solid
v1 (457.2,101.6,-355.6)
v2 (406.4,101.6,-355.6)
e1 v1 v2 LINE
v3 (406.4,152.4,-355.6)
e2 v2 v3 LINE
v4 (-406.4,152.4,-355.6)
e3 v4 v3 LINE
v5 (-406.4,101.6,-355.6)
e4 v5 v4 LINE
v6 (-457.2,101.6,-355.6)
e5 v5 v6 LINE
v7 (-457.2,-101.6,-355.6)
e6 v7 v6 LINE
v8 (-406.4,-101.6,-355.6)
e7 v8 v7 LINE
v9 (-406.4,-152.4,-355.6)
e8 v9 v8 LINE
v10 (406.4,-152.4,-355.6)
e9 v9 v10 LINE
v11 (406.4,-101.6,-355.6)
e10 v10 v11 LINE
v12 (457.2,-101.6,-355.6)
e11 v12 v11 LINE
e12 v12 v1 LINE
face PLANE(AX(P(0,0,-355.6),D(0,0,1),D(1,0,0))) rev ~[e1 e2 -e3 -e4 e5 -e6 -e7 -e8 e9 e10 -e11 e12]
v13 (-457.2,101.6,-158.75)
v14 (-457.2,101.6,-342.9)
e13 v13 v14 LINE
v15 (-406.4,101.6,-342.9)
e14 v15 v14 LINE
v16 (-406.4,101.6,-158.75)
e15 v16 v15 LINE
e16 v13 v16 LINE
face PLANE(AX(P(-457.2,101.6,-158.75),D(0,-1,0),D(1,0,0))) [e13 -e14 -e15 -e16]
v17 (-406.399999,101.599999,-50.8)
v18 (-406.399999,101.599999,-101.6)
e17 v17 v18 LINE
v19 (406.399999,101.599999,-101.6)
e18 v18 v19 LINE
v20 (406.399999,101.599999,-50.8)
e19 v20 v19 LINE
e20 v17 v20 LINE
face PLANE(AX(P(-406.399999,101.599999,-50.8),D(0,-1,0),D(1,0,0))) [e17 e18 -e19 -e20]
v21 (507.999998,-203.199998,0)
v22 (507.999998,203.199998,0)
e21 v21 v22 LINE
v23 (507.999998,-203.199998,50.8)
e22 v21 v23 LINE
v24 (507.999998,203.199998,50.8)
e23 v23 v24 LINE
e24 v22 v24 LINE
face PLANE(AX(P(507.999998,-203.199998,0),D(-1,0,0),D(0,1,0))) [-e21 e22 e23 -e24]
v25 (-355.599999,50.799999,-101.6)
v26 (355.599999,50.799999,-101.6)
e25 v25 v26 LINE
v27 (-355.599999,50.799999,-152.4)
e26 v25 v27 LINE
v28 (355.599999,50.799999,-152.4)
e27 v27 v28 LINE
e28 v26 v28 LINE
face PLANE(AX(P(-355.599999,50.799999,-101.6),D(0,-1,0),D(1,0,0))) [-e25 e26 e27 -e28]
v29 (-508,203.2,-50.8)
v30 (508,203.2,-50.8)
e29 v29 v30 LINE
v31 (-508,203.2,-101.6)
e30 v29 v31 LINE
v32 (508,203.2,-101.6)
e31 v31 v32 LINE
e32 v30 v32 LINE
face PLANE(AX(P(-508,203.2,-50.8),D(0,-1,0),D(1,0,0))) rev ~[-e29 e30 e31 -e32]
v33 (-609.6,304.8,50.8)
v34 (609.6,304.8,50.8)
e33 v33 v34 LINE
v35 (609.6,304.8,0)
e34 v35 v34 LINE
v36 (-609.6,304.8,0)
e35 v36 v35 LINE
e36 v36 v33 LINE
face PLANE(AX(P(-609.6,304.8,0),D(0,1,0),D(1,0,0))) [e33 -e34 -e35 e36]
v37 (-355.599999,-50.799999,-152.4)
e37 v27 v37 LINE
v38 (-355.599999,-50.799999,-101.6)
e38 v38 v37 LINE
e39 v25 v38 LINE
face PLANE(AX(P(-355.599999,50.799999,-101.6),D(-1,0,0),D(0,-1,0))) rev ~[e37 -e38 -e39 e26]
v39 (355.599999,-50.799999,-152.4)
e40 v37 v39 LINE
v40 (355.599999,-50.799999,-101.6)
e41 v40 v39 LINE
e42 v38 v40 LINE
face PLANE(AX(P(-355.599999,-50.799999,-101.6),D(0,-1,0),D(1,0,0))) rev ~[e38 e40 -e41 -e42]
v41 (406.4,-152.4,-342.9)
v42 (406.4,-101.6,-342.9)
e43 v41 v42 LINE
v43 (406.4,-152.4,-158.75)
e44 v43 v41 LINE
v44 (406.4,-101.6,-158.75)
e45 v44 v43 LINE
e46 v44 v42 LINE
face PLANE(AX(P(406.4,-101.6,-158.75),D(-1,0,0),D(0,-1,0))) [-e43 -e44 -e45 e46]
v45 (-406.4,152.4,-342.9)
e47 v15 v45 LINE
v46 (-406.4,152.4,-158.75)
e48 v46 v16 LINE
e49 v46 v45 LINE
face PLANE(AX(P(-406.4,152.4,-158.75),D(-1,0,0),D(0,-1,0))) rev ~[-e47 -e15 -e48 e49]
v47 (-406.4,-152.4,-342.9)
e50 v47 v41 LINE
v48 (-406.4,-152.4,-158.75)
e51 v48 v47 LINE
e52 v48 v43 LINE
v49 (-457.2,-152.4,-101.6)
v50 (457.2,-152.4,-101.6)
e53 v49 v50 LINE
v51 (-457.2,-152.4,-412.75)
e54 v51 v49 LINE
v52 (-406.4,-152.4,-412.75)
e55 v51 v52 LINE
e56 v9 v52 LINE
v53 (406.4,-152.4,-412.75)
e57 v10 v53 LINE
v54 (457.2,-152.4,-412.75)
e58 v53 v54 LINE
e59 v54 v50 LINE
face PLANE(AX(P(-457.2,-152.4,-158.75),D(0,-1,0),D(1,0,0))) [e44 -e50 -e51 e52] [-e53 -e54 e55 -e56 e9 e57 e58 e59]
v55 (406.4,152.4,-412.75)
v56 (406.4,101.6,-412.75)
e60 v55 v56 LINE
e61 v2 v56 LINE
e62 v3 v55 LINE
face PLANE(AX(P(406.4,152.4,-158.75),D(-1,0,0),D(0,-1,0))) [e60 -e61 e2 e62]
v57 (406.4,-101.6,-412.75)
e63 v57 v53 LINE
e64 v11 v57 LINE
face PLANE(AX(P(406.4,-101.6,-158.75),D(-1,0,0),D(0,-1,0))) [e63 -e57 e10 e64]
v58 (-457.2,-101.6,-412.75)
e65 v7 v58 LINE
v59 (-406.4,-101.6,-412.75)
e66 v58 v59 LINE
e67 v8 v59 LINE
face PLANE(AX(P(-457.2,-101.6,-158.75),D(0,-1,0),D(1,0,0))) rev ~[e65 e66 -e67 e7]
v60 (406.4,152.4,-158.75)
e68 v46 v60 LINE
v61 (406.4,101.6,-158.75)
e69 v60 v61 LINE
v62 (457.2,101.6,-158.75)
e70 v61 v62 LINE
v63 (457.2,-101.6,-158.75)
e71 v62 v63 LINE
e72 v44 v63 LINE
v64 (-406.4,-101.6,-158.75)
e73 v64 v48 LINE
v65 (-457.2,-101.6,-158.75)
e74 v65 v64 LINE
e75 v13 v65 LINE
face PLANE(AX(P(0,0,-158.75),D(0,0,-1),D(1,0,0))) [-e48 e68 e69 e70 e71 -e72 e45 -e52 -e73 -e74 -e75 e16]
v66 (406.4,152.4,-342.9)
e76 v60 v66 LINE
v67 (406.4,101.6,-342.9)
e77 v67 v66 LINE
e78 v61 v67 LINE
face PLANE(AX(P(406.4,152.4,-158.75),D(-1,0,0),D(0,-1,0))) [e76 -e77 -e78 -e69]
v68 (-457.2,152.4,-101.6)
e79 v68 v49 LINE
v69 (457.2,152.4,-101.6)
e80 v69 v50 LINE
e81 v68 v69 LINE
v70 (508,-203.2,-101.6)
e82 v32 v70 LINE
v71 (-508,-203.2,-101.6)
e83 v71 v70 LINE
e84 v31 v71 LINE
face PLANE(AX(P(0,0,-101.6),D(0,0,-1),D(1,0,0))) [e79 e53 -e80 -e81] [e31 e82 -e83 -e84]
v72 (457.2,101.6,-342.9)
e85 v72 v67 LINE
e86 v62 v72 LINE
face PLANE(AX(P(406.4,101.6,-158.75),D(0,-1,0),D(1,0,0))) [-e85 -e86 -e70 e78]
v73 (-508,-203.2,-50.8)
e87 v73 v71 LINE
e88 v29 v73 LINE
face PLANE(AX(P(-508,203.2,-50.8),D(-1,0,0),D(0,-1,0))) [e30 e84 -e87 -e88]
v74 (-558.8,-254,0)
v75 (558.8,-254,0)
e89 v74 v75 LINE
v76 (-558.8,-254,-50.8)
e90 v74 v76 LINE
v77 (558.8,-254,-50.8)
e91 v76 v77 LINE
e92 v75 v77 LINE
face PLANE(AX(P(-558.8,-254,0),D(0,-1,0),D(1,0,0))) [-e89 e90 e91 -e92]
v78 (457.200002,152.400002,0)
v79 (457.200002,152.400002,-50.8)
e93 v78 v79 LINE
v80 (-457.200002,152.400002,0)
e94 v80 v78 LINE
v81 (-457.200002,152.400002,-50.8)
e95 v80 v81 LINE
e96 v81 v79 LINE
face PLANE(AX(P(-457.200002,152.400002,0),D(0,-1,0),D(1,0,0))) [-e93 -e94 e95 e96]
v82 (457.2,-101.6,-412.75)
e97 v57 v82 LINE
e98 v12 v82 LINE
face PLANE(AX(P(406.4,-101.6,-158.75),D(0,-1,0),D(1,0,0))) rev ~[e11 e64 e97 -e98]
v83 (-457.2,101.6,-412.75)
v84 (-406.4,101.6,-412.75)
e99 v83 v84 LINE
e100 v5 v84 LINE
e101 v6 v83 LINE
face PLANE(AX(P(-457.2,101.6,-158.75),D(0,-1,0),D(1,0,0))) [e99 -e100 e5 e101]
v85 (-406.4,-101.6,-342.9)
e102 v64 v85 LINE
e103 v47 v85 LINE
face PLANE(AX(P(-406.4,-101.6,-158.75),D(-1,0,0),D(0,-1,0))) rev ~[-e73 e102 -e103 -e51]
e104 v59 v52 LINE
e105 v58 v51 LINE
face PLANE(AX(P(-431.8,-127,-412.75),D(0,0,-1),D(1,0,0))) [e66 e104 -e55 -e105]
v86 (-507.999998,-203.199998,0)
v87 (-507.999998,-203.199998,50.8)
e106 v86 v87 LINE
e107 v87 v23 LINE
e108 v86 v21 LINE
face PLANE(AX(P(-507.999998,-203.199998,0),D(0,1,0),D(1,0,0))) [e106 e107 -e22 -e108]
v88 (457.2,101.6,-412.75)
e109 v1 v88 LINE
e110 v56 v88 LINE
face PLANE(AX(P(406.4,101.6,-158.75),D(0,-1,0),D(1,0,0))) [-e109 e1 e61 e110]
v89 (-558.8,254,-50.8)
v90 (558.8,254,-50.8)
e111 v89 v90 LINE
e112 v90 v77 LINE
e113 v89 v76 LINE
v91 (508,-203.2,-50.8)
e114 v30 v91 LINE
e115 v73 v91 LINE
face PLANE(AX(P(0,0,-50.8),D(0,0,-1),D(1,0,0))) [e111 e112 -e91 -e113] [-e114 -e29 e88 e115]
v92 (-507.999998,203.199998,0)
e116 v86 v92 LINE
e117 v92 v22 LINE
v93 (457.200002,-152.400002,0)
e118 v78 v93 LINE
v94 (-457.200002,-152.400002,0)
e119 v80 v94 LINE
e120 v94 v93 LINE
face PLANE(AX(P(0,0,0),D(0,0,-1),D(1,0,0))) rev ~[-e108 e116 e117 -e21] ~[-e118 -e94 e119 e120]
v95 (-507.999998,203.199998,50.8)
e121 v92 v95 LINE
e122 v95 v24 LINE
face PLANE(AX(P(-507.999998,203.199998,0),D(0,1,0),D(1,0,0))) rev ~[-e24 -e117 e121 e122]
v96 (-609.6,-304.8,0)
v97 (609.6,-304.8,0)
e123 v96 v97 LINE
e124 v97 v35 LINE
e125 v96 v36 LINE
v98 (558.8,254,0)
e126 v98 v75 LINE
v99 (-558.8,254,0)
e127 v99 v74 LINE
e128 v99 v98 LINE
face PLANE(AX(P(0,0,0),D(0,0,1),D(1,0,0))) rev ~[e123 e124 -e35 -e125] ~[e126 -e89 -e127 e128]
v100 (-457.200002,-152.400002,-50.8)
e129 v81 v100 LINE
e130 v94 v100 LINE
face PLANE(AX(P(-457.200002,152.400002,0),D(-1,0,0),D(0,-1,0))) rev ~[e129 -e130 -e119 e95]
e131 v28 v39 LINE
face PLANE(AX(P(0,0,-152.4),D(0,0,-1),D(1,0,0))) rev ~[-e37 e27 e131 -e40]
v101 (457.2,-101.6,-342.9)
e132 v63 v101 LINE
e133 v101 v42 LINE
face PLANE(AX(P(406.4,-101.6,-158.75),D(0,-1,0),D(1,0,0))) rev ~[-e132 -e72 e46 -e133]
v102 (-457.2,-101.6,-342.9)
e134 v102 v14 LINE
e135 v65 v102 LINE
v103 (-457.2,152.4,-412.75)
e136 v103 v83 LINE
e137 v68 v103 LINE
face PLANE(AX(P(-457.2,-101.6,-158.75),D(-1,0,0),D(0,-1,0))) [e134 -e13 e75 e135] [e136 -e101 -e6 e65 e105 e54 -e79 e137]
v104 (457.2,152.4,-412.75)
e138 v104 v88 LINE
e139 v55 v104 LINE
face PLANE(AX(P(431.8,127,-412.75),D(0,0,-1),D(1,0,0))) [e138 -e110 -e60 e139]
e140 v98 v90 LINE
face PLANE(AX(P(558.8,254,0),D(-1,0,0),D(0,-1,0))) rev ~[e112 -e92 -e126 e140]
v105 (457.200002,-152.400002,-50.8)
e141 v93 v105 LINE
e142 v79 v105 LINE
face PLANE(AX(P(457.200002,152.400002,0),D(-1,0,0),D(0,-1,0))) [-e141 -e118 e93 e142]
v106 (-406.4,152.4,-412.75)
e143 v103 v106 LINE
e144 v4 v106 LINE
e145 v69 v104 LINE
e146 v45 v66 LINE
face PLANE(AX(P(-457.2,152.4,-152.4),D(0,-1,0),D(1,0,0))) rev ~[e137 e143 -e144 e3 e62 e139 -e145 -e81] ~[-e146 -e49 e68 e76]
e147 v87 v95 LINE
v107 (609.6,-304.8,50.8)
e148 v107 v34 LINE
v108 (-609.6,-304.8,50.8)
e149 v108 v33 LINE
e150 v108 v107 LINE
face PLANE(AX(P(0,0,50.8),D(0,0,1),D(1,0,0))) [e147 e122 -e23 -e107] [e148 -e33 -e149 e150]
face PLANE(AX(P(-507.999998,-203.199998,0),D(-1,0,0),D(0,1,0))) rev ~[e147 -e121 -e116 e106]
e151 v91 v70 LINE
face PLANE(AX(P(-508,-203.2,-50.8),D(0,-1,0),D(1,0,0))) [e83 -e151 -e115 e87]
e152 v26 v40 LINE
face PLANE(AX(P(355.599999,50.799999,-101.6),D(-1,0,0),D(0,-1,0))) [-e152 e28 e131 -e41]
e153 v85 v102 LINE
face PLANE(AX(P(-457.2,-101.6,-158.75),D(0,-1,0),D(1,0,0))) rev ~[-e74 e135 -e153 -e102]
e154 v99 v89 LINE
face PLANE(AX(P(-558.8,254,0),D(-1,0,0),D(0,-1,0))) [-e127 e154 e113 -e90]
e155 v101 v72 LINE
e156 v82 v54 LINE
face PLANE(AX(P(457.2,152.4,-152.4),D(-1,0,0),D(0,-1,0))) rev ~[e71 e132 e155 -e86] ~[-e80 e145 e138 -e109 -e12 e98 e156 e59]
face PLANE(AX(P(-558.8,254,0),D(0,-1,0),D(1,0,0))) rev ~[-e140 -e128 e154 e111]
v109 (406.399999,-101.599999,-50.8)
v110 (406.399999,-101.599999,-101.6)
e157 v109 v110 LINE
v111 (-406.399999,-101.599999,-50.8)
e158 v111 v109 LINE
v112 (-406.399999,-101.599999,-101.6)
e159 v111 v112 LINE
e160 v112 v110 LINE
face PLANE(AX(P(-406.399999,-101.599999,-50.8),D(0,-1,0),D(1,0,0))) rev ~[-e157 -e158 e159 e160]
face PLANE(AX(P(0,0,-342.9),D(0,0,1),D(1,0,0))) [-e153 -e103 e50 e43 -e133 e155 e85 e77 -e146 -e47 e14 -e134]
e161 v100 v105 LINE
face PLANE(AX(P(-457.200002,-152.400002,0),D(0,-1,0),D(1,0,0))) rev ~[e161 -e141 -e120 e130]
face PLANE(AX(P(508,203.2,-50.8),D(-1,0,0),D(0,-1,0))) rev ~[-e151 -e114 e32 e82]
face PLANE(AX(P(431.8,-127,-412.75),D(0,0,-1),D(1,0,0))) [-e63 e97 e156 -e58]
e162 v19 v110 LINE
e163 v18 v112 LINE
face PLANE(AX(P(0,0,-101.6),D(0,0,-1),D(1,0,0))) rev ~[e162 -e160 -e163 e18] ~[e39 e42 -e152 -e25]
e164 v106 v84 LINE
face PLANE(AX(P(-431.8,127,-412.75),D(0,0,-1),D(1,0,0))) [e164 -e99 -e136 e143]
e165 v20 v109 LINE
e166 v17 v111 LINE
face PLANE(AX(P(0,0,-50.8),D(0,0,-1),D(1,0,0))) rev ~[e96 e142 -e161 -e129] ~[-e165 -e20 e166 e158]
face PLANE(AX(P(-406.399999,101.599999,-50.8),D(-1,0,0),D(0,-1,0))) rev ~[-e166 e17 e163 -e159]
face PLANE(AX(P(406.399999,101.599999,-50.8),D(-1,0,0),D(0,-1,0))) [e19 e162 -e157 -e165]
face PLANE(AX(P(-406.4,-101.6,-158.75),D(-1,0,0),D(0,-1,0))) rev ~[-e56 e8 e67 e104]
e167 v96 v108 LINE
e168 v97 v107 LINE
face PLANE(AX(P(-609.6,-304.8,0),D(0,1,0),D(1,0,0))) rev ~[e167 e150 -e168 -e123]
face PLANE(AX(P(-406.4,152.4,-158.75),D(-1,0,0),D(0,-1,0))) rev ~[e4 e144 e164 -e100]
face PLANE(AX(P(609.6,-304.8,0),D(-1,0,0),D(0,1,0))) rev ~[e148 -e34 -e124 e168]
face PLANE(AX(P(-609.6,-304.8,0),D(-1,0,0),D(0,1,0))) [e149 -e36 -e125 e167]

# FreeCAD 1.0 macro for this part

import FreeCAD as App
import Part
import Sketcher
from FreeCAD import Vector
Q = App.Units.Quantity


def add_polygon(sketch, points):
    """Adds a closed chain of lines whose ends are joined by coincident constraints."""
    first, n = sketch.GeometryCount, len(points)
    for a, b in zip(points, points[1:] + points[:1]):
        sketch.addGeometry(Part.LineSegment(App.Vector(*a, 0), App.Vector(*b, 0)), False)
    for i in range(n):
        sketch.addConstraint(Sketcher.Constraint("Coincident", first + i, 2, first + (i + 1) % n, 1))

doc = App.newDocument("Part")
body = doc.addObject("PartDesign::Body", "Body")

sketch1 = body.newObject("Sketcher::SketchObject", "Sketch")
sketch1.AttachmentSupport = (doc.getObject("XY_Plane"), [""])
sketch1.MapMode = "FlatFace"
add_polygon(sketch1, [(-609.6, 304.8), (-609.6, -304.8), (609.6, -304.8), (609.6, 304.8)])
add_polygon(sketch1, [(507.999998, -203.199998), (-507.999998, -203.199998), (-507.999998, 203.199998), (507.999998, 203.199998)])
sketch1.addConstraint([
    Sketcher.Constraint("Vertical", 0),
    Sketcher.Constraint("Horizontal", 1),
    Sketcher.Constraint("Vertical", 2),
    Sketcher.Constraint("Horizontal", 3),
    Sketcher.Constraint("Horizontal", 4),
    Sketcher.Constraint("Vertical", 5),
    Sketcher.Constraint("Horizontal", 6),
    Sketcher.Constraint("Vertical", 7),
    Sketcher.Constraint("Symmetric", 0, 2, 2, 2, -1, 1),
    Sketcher.Constraint("Symmetric", 4, 2, 6, 2, -1, 1),
    Sketcher.Constraint("DistanceX", 1, 1, 1, 2, Q("48 in")),
    Sketcher.Constraint("DistanceX", 4, 2, 4, 1, Q("39.9999998 in")),
    Sketcher.Constraint("DistanceY", 0, 2, 0, 1, Q("24 in")),
    Sketcher.Constraint("DistanceY", 5, 1, 5, 2, Q("15.9999998 in")),
])
pad1 = body.newObject("PartDesign::Pad", "Pad")
pad1.Profile = sketch1
pad1.Length = Q("2 in")

sketch2 = body.newObject("Sketcher::SketchObject", "Sketch001")
sketch2.AttachmentSupport = (doc.getObject("XY_Plane"), [""])
sketch2.MapMode = "FlatFace"
add_polygon(sketch2, [(-558.8, -254), (-558.8, 254), (558.8, 254), (558.8, -254)])
add_polygon(sketch2, [(457.200002, 152.400002), (-457.200002, 152.400002), (-457.200002, -152.400002), (457.200002, -152.400002)])
sketch2.addConstraint([
    Sketcher.Constraint("Vertical", 0),
    Sketcher.Constraint("Horizontal", 1),
    Sketcher.Constraint("Vertical", 2),
    Sketcher.Constraint("Horizontal", 3),
    Sketcher.Constraint("Horizontal", 4),
    Sketcher.Constraint("Vertical", 5),
    Sketcher.Constraint("Horizontal", 6),
    Sketcher.Constraint("Vertical", 7),
    Sketcher.Constraint("Symmetric", 0, 2, 2, 2, -1, 1),
    Sketcher.Constraint("Symmetric", 4, 2, 6, 2, -1, 1),
    Sketcher.Constraint("DistanceX", 1, 1, 1, 2, Q("44 in")),
    Sketcher.Constraint("DistanceX", 4, 2, 4, 1, Q("36.0000002 in")),
    Sketcher.Constraint("DistanceY", 0, 1, 0, 2, Q("20 in")),
    Sketcher.Constraint("DistanceY", 5, 2, 5, 1, Q("12.0000002 in")),
])
pad2 = body.newObject("PartDesign::Pad", "Pad001")
pad2.Profile = sketch2
pad2.Length = Q("2 in")
pad2.Reversed = True

sketch3 = body.newObject("Sketcher::SketchObject", "Sketch002")
sketch3.AttachmentSupport = (doc.getObject("XY_Plane"), [""])
sketch3.MapMode = "FlatFace"
sketch3.AttachmentOffset = App.Placement(Vector(0, 0, -2 * 25.4), App.Rotation())
add_polygon(sketch3, [(-508, -203.2), (-508, 203.2), (508, 203.2), (508, -203.2)])
add_polygon(sketch3, [(406.399999, 101.599999), (-406.399999, 101.599999), (-406.399999, -101.599999), (406.399999, -101.599999)])
sketch3.addConstraint([
    Sketcher.Constraint("Vertical", 0),
    Sketcher.Constraint("Horizontal", 1),
    Sketcher.Constraint("Vertical", 2),
    Sketcher.Constraint("Horizontal", 3),
    Sketcher.Constraint("Horizontal", 4),
    Sketcher.Constraint("Vertical", 5),
    Sketcher.Constraint("Horizontal", 6),
    Sketcher.Constraint("Vertical", 7),
    Sketcher.Constraint("Symmetric", 0, 2, 2, 2, -1, 1),
    Sketcher.Constraint("Symmetric", 4, 2, 6, 2, -1, 1),
    Sketcher.Constraint("DistanceX", 1, 1, 1, 2, Q("40 in")),
    Sketcher.Constraint("DistanceX", 4, 2, 4, 1, Q("31.9999999 in")),
    Sketcher.Constraint("DistanceY", 0, 1, 0, 2, Q("16 in")),
    Sketcher.Constraint("DistanceY", 5, 2, 5, 1, Q("7.9999999 in")),
])
pad3 = body.newObject("PartDesign::Pad", "Pad002")
pad3.Profile = sketch3
pad3.Length = Q("2 in")
pad3.Reversed = True

sketch4 = body.newObject("Sketcher::SketchObject", "Sketch003")
sketch4.AttachmentSupport = (doc.getObject("XY_Plane"), [""])
sketch4.MapMode = "FlatFace"
sketch4.AttachmentOffset = App.Placement(Vector(0, 0, -4 * 25.4), App.Rotation())
add_polygon(sketch4, [(-457.2, -152.4), (-457.2, 152.4), (457.2, 152.4), (457.2, -152.4)])
add_polygon(sketch4, [(355.599999, 50.799999), (-355.599999, 50.799999), (-355.599999, -50.799999), (355.599999, -50.799999)])
sketch4.addConstraint([
    Sketcher.Constraint("Vertical", 0),
    Sketcher.Constraint("Horizontal", 1),
    Sketcher.Constraint("Vertical", 2),
    Sketcher.Constraint("Horizontal", 3),
    Sketcher.Constraint("Horizontal", 4),
    Sketcher.Constraint("Vertical", 5),
    Sketcher.Constraint("Horizontal", 6),
    Sketcher.Constraint("Vertical", 7),
    Sketcher.Constraint("Symmetric", 0, 2, 2, 2, -1, 1),
    Sketcher.Constraint("Symmetric", 4, 2, 6, 2, -1, 1),
    Sketcher.Constraint("DistanceX", 1, 1, 1, 2, Q("36 in")),
    Sketcher.Constraint("DistanceX", 4, 2, 4, 1, Q("27.9999999 in")),
    Sketcher.Constraint("DistanceY", 0, 1, 0, 2, Q("12 in")),
    Sketcher.Constraint("DistanceY", 5, 2, 5, 1, Q("3.9999999 in")),
])
pad4 = body.newObject("PartDesign::Pad", "Pad003")
pad4.Profile = sketch4
pad4.Length = Q("2 in")
pad4.Reversed = True

sketch5 = body.newObject("Sketcher::SketchObject", "Sketch004")
sketch5.AttachmentSupport = (doc.getObject("XY_Plane"), [""])
sketch5.MapMode = "FlatFace"
sketch5.AttachmentOffset = App.Placement(Vector(0, 0, -6 * 25.4), App.Rotation())
add_polygon(sketch5, [(-457.2, -152.4), (-457.2, 152.4), (457.2, 152.4), (457.2, -152.4)])
sketch5.addConstraint([
    Sketcher.Constraint("Vertical", 0),
    Sketcher.Constraint("Horizontal", 1),
    Sketcher.Constraint("Vertical", 2),
    Sketcher.Constraint("Horizontal", 3),
    Sketcher.Constraint("Symmetric", 0, 2, 2, 2, -1, 1),
    Sketcher.Constraint("DistanceX", 1, 1, 1, 2, Q("36 in")),
    Sketcher.Constraint("DistanceY", 0, 1, 0, 2, Q("12 in")),
])
pad5 = body.newObject("PartDesign::Pad", "Pad004")
pad5.Profile = sketch5
pad5.Length = Q("0.25 in")
pad5.Reversed = True

sketch6 = body.newObject("Sketcher::SketchObject", "Sketch005")
sketch6.AttachmentSupport = (doc.getObject("XY_Plane"), [""])
sketch6.MapMode = "FlatFace"
sketch6.AttachmentOffset = App.Placement(Vector(0, 0, -6.25 * 25.4), App.Rotation())
add_polygon(sketch6, [(-457.2, -152.4), (-457.2, -101.6), (-406.4, -101.6), (-406.4, -152.4)])
add_polygon(sketch6, [(-457.2, 101.6), (-457.2, 152.4), (-406.4, 152.4), (-406.4, 101.6)])
add_polygon(sketch6, [(406.4, -152.4), (406.4, -101.6), (457.2, -101.6), (457.2, -152.4)])
add_polygon(sketch6, [(406.4, 101.6), (406.4, 152.4), (457.2, 152.4), (457.2, 101.6)])
sketch6.addConstraint([
    Sketcher.Constraint("Vertical", 0),
    Sketcher.Constraint("Horizontal", 1),
    Sketcher.Constraint("Vertical", 2),
    Sketcher.Constraint("Horizontal", 3),
    Sketcher.Constraint("Vertical", 4),
    Sketcher.Constraint("Horizontal", 5),
    Sketcher.Constraint("Vertical", 6),
    Sketcher.Constraint("Horizontal", 7),
    Sketcher.Constraint("Vertical", 8),
    Sketcher.Constraint("Horizontal", 9),
    Sketcher.Constraint("Vertical", 10),
    Sketcher.Constraint("Horizontal", 11),
    Sketcher.Constraint("Vertical", 12),
    Sketcher.Constraint("Horizontal", 13),
    Sketcher.Constraint("Vertical", 14),
    Sketcher.Constraint("Horizontal", 15),
    Sketcher.Constraint("Symmetric", 6, 2, 8, 2, -1, 1),
    Sketcher.Constraint("Symmetric", 4, 2, 10, 2, -1, 1),
    Sketcher.Constraint("Symmetric", 2, 2, 12, 2, -1, 1),
    Sketcher.Constraint("Symmetric", 0, 2, 14, 2, -1, 1),
    Sketcher.Constraint("Symmetric", 1, 2, 8, 2, -2),
    Sketcher.Constraint("Symmetric", 3, 2, 10, 2, -2),
    Sketcher.Constraint("Equal", 15, 0),
    Sketcher.Constraint("DistanceX", 1, 1, 1, 2, Q("2 in")),
    Sketcher.Constraint("DistanceX", 0, 2, -1, 1, Q("18 in")),
    Sketcher.Constraint("DistanceY", 0, 2, -1, 1, Q("4 in")),
])
pad6 = body.newObject("PartDesign::Pad", "Pad005")
pad6.Profile = sketch6
pad6.Length = Q("10 in")
pad6.Reversed = True

sketch7 = body.newObject("Sketcher::SketchObject", "Sketch006")
sketch7.AttachmentSupport = (doc.getObject("XY_Plane"), [""])
sketch7.MapMode = "FlatFace"
sketch7.AttachmentOffset = App.Placement(Vector(0, 0, -14 * 25.4), App.Rotation())
add_polygon(sketch7, [(-457.2, 152.4), (-457.2, -152.4), (457.2, -152.4), (457.2, 152.4)])
sketch7.addConstraint([
    Sketcher.Constraint("Vertical", 0),
    Sketcher.Constraint("Horizontal", 1),
    Sketcher.Constraint("Vertical", 2),
    Sketcher.Constraint("Horizontal", 3),
    Sketcher.Constraint("Symmetric", 0, 2, 2, 2, -1, 1),
    Sketcher.Constraint("DistanceX", 1, 1, 1, 2, Q("36 in")),
    Sketcher.Constraint("DistanceY", 0, 2, 0, 1, Q("12 in")),
])
pad7 = body.newObject("PartDesign::Pad", "Pad006")
pad7.Profile = sketch7
pad7.Length = Q("0.5 in")

doc.recompute()
